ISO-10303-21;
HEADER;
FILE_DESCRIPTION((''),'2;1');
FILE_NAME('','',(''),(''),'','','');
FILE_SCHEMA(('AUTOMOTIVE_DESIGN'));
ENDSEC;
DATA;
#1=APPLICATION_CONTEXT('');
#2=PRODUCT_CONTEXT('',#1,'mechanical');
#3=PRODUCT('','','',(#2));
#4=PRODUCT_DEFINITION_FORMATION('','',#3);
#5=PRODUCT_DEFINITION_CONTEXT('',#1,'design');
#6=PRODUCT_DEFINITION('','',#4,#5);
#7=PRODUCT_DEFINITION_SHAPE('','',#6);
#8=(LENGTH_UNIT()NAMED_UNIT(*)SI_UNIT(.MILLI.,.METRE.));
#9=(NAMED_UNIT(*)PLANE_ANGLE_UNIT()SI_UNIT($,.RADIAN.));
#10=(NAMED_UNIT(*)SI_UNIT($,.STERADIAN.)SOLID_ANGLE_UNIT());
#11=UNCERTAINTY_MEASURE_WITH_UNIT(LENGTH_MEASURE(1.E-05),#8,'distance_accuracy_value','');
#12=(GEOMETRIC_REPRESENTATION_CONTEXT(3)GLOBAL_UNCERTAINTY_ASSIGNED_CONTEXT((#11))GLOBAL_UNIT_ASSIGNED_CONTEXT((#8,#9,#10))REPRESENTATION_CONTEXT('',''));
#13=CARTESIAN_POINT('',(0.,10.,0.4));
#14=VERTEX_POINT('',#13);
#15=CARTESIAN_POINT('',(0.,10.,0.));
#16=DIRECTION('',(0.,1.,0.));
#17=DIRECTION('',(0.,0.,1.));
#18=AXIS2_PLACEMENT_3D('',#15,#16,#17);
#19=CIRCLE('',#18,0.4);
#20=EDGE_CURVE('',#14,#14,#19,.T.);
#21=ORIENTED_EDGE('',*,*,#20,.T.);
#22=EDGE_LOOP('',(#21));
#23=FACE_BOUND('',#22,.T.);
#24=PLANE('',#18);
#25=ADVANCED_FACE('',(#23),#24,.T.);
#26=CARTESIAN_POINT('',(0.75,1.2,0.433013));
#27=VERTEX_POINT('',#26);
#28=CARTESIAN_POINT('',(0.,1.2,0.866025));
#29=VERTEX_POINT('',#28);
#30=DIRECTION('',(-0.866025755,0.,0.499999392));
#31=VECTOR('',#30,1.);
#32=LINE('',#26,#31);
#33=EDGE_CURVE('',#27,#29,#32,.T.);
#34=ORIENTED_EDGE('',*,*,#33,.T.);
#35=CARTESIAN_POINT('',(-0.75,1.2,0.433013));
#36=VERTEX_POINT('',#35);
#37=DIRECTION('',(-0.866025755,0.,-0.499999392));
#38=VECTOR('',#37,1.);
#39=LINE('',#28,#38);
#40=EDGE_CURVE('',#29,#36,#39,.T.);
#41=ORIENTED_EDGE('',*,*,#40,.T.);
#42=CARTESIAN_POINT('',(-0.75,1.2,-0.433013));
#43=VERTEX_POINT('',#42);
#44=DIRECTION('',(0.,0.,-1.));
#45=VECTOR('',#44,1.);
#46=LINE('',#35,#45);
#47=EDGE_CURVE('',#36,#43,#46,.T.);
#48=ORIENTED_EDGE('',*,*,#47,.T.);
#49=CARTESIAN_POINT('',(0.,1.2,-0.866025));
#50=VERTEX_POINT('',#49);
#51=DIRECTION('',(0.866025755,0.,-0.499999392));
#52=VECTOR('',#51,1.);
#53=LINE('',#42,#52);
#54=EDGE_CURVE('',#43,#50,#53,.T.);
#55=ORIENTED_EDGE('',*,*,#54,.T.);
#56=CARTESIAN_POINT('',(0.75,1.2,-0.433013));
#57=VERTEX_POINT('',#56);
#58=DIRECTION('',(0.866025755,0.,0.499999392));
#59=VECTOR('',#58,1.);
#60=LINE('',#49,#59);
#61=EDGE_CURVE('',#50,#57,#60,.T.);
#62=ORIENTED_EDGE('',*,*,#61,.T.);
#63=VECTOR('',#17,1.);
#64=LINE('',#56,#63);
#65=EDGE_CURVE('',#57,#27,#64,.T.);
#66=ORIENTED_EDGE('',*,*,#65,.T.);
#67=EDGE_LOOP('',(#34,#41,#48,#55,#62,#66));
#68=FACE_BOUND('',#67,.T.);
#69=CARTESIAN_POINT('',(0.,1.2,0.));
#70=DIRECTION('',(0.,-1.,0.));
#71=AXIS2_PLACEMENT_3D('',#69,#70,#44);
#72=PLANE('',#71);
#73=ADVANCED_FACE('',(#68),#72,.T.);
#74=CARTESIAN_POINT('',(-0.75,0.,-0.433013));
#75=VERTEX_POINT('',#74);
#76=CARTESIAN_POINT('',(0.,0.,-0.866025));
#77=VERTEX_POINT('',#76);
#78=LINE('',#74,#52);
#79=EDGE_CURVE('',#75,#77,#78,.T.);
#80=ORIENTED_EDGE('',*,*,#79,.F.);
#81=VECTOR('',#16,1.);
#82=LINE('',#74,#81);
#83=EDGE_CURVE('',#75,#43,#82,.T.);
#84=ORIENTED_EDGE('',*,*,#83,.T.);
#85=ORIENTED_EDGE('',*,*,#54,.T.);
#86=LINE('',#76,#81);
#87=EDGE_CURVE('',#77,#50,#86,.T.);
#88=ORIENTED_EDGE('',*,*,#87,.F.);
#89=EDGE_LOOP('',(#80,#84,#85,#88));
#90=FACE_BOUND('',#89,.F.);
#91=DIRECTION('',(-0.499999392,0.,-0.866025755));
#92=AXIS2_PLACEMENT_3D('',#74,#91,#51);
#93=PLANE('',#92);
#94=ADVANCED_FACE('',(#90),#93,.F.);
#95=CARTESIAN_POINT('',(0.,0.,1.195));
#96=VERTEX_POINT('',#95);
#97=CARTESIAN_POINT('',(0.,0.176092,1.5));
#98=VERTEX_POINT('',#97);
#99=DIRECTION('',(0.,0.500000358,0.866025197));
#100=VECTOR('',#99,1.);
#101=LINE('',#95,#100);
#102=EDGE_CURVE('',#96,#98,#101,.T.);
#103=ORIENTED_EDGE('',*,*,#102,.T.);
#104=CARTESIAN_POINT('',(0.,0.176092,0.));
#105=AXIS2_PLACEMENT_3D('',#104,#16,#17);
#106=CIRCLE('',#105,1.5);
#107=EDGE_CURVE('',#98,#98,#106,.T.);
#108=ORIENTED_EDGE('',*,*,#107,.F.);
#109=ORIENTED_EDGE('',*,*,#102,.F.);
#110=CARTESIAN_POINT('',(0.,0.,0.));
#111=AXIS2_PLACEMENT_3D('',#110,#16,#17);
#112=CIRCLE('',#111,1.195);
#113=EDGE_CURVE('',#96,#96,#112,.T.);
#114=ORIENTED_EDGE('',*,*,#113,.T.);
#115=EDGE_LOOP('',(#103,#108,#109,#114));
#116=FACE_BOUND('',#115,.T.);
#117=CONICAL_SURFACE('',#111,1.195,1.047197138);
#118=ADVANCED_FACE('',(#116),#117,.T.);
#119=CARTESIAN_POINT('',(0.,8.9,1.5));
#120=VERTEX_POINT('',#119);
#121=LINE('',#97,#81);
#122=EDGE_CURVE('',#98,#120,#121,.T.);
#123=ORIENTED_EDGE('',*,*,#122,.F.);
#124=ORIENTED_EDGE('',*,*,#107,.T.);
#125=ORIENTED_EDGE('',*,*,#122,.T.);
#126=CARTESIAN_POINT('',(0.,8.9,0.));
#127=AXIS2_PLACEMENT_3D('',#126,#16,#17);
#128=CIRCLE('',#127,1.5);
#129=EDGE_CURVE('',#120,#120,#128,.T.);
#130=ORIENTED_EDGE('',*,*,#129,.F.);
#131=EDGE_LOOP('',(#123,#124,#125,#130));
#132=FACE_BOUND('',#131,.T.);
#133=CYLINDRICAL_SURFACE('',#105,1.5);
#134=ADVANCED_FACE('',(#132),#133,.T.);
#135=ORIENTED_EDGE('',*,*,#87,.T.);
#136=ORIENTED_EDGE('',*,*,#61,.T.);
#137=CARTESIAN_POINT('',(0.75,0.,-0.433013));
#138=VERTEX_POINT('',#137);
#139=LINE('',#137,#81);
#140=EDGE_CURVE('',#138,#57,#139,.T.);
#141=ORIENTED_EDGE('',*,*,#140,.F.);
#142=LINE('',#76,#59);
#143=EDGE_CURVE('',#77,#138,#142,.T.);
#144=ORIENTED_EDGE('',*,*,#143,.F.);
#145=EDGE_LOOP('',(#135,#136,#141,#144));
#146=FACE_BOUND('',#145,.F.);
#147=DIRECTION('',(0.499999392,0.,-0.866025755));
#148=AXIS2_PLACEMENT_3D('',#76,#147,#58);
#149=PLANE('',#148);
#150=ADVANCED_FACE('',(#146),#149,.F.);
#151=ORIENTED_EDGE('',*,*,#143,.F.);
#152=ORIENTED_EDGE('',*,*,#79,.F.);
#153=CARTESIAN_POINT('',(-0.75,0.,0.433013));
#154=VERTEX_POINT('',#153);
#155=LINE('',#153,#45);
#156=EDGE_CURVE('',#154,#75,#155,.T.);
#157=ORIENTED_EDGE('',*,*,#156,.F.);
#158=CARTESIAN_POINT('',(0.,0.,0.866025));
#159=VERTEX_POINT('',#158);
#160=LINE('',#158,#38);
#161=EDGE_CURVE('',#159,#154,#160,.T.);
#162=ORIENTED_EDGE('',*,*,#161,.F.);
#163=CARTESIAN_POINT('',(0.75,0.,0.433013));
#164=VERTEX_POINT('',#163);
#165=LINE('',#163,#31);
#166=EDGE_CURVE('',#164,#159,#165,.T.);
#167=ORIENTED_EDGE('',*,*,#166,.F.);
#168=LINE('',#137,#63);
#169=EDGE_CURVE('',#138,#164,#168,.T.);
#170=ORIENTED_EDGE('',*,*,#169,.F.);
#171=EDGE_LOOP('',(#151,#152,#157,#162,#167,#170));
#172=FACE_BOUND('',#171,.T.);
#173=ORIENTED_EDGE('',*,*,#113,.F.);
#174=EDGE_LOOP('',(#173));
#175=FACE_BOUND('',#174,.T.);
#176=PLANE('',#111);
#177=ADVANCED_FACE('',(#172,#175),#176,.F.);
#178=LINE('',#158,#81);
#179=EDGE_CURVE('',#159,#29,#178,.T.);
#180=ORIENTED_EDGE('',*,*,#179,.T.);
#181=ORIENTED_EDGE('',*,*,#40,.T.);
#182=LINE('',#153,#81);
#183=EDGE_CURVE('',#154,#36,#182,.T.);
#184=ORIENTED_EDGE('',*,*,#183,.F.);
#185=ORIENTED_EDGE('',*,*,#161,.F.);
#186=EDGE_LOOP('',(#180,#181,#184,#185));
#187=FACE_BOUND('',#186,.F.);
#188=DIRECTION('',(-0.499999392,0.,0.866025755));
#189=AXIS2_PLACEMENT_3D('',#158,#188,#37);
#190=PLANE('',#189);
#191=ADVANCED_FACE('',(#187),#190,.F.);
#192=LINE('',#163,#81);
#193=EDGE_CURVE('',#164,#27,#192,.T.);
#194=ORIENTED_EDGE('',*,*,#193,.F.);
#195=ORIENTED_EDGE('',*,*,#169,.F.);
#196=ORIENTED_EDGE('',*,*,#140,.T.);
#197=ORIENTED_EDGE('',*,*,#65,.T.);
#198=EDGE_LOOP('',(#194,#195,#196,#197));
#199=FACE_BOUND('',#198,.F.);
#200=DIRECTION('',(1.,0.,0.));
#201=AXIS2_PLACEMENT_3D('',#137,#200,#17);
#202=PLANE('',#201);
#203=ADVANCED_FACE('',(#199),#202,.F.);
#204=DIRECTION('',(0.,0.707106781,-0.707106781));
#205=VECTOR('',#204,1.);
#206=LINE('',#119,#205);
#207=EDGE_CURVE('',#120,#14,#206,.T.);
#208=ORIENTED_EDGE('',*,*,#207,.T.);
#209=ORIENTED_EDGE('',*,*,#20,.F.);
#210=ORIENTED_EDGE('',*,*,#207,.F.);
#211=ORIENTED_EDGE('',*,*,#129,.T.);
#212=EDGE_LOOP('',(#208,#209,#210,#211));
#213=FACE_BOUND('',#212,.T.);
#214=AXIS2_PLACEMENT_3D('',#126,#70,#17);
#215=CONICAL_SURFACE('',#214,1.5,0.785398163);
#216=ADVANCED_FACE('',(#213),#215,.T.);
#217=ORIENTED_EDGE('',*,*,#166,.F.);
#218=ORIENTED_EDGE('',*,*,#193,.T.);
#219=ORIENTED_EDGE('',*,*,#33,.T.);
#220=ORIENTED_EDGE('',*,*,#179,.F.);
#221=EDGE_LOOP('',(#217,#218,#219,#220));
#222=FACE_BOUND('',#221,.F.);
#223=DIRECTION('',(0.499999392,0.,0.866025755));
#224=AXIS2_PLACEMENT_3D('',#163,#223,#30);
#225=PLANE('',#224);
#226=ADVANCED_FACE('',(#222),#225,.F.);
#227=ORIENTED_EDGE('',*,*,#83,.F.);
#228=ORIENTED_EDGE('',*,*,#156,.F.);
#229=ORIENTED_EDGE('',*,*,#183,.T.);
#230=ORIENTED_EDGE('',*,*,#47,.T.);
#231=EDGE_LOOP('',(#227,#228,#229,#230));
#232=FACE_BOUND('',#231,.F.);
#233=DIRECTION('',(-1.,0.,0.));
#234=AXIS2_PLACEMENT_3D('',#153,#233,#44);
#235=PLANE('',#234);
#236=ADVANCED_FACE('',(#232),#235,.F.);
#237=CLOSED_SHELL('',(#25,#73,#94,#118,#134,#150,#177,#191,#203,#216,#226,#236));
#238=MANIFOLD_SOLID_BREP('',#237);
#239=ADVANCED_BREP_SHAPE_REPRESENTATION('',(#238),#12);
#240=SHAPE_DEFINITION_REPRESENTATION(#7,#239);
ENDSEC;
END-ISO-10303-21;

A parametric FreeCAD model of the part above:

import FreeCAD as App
import Part
import Sketcher

V = App.Vector
Q = App.Units.Quantity

doc = App.newDocument("Part")
body = doc.addObject("PartDesign::Body", "Body")

sketch1 = body.newObject("Sketcher::SketchObject", "Sketch")
sketch1.AttachmentSupport = (doc.getObject("YZ_Plane"), [""])
sketch1.MapMode = "FlatFace"
sketch1.addGeometry(Part.LineSegment(V(0, 1.195, 0), V(0, 0, 0)), False)
sketch1.addGeometry(Part.LineSegment(V(0, 0, 0), V(10, 0, 0)), False)
sketch1.addGeometry(Part.LineSegment(V(10, 0, 0), V(10, 0.4, 0)), False)
sketch1.addGeometry(Part.LineSegment(V(10, 0.4, 0), V(8.9, 1.5, 0)), False)
sketch1.addGeometry(Part.LineSegment(V(8.9, 1.5, 0), V(0.176092, 1.5, 0)), False)
sketch1.addGeometry(Part.LineSegment(V(0.176092, 1.5, 0), V(0, 1.195, 0)), False)
sketch1.addConstraint(Sketcher.Constraint("Coincident", 0, 2, 1, 1))
sketch1.addConstraint(Sketcher.Constraint("Coincident", 1, 2, 2, 1))
sketch1.addConstraint(Sketcher.Constraint("Coincident", 2, 2, 3, 1))
sketch1.addConstraint(Sketcher.Constraint("Coincident", 3, 2, 4, 1))
sketch1.addConstraint(Sketcher.Constraint("Coincident", 4, 2, 5, 1))
sketch1.addConstraint(Sketcher.Constraint("Coincident", 5, 2, 0, 1))
sketch1.addConstraint(Sketcher.Constraint("Vertical", 0))
sketch1.addConstraint(Sketcher.Constraint("Horizontal", 1))
sketch1.addConstraint(Sketcher.Constraint("Vertical", 2))
sketch1.addConstraint(Sketcher.Constraint("Horizontal", 4))
sketch1.addConstraint(Sketcher.Constraint("Coincident", 0, 2, -1, 1))
sketch1.addConstraint(Sketcher.Constraint("DistanceX", 1, 1, 1, 2, 10.0))
sketch1.addConstraint(Sketcher.Constraint("Angle", 3, Q("135 deg")))
sketch1.addConstraint(Sketcher.Constraint("DistanceY", 2, 1, 2, 2, 0.4))
sketch1.addConstraint(Sketcher.Constraint("DistanceX", -1, 1, 3, 2, 8.9))
sketch1.addConstraint(Sketcher.Constraint("DistanceY", 0, 2, 0, 1, 1.195))
sketch1.addConstraint(Sketcher.Constraint("DistanceX", 4, 2, 4, 1, 8.723908))
revolution = body.newObject("PartDesign::Revolution", "Revolution")
revolution.Profile = sketch1
revolution.ReferenceAxis = (sketch1, ["H_Axis"])
revolution.Angle = 360

sketch2 = body.newObject("Sketcher::SketchObject", "Sketch001")
sketch2.AttachmentSupport = (doc.getObject("XZ_Plane"), [""])
sketch2.MapMode = "FlatFace"
sketch2.addGeometry(Part.LineSegment(V(-0.75, 0.433013, 0), V(-0.75, -0.433013, 0)), False)
sketch2.addGeometry(Part.LineSegment(V(-0.75, -0.433013, 0), V(0, -0.866025, 0)), False)
sketch2.addGeometry(Part.LineSegment(V(0, -0.866025, 0), V(0.75, -0.433013, 0)), False)
sketch2.addGeometry(Part.LineSegment(V(0.75, -0.433013, 0), V(0.75, 0.433013, 0)), False)
sketch2.addGeometry(Part.LineSegment(V(0.75, 0.433013, 0), V(0, 0.866025, 0)), False)
sketch2.addGeometry(Part.LineSegment(V(0, 0.866025, 0), V(-0.75, 0.433013, 0)), False)
sketch2.addConstraint(Sketcher.Constraint("Coincident", 0, 2, 1, 1))
sketch2.addConstraint(Sketcher.Constraint("Coincident", 1, 2, 2, 1))
sketch2.addConstraint(Sketcher.Constraint("Coincident", 2, 2, 3, 1))
sketch2.addConstraint(Sketcher.Constraint("Coincident", 3, 2, 4, 1))
sketch2.addConstraint(Sketcher.Constraint("Coincident", 4, 2, 5, 1))
sketch2.addConstraint(Sketcher.Constraint("Coincident", 5, 2, 0, 1))
sketch2.addConstraint(Sketcher.Constraint("Vertical", 0))
sketch2.addConstraint(Sketcher.Constraint("Vertical", 3))
sketch2.addConstraint(Sketcher.Constraint("Symmetric", 0, 2, 3, 2, -1, 1))
sketch2.addConstraint(Sketcher.Constraint("Symmetric", 1, 2, 4, 2, -1, 1))
sketch2.addConstraint(Sketcher.Constraint("PointOnObject", 1, 2, -2))
sketch2.addConstraint(Sketcher.Constraint("Parallel", 2, 5))
sketch2.addConstraint(Sketcher.Constraint("Horizontal", 0, 2, 2, 2))
sketch2.addConstraint(Sketcher.Constraint("DistanceX", 0, 2, 2, 2, 1.5))
sketch2.addConstraint(Sketcher.Constraint("DistanceY", 0, 2, 0, 1, 0.866026))
sketch2.addConstraint(Sketcher.Constraint("DistanceY", 1, 2, 4, 2, 1.73205))
pocket1 = body.newObject("PartDesign::Pocket", "Pocket")
pocket1.Profile = sketch2
pocket1.Length = 1.2

doc.recompute()
